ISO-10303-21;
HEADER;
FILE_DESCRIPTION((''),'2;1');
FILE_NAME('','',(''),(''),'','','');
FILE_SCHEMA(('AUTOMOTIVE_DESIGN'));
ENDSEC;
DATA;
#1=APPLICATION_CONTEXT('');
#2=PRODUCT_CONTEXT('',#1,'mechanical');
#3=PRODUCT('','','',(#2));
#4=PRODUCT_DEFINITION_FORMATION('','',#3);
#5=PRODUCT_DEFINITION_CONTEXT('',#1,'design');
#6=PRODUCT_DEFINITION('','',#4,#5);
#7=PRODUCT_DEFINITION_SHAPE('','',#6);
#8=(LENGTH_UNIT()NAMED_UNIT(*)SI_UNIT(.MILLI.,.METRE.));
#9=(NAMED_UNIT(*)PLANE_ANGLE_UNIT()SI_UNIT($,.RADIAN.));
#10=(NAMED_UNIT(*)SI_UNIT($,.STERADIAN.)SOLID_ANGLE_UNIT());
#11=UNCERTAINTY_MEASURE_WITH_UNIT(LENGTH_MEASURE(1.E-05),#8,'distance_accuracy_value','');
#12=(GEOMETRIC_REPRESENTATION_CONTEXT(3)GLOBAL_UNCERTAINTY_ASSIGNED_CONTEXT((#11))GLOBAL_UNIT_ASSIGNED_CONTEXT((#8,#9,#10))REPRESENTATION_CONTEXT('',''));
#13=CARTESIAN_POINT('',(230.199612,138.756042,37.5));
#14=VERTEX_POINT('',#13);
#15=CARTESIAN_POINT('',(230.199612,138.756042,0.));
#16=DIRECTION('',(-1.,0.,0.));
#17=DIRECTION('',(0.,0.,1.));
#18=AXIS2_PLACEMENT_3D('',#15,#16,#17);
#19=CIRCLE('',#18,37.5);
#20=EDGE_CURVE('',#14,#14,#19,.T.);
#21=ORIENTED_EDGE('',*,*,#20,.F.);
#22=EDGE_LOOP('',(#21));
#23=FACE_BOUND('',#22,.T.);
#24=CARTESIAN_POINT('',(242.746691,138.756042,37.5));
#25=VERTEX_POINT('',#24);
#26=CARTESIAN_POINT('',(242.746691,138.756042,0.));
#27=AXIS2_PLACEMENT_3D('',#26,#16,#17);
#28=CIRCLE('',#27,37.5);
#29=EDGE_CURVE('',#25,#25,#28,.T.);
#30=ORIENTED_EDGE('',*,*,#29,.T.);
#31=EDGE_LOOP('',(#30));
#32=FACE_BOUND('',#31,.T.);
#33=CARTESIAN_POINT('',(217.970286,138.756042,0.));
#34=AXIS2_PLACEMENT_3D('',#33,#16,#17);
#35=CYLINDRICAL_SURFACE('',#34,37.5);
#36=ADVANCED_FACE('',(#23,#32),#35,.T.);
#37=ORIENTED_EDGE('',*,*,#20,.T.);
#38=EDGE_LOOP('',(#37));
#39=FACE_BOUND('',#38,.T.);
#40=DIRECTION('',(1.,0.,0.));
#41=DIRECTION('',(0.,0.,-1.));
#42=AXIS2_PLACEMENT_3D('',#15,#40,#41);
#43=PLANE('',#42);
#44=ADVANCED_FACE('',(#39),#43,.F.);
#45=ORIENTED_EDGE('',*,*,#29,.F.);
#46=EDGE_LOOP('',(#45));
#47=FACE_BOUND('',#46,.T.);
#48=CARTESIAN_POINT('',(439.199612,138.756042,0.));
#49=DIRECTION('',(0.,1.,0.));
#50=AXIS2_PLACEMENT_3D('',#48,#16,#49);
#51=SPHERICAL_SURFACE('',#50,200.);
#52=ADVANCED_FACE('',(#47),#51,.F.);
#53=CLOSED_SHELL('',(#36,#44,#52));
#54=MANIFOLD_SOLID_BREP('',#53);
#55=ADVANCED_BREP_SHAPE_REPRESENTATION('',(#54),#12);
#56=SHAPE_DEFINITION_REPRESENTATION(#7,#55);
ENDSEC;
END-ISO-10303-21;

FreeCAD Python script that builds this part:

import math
import FreeCAD as App
import Part
import Sketcher

V = App.Vector
Q = App.Units.Quantity

doc = App.newDocument("Part")
body = doc.addObject("PartDesign::Body", "Body")

sketch1 = doc.addObject("Sketcher::SketchObject", "Sketch")
body.addObject(sketch1)
sketch1.AttachmentSupport = (doc.XY_Plane, [""])
sketch1.MapMode = "FlatFace"
sketch1.addGeometry([
    Part.LineSegment(V(230, 176, 0), V(230, 139, 0)),
    Part.LineSegment(V(230, 139, 0), V(239, 139, 0)),
    Part.ArcOfCircle(Part.Circle(V(439, 139, 0), V(0, 0, 1), 200), math.radians(169.19), math.radians(180)),
    Part.LineSegment(V(243, 176, 0), V(230, 176, 0)),
], False)
sketch1.addGeometry(Part.LineSegment(V(230, 139, 0), V(439, 139, 0)), True)
sketch1.addConstraint([
    Sketcher.Constraint("Coincident", 0, 2, 1, 1),
    Sketcher.Constraint("Coincident", 1, 2, 2, 2),
    Sketcher.Constraint("Coincident", 2, 1, 3, 1),
    Sketcher.Constraint("Coincident", 3, 2, 0, 1),
    Sketcher.Constraint("Vertical", 0),
    Sketcher.Constraint("Horizontal", 1),
    Sketcher.Constraint("Horizontal", 3),
    Sketcher.Constraint("Horizontal", 4),
    Sketcher.Constraint("Coincident", 4, 1, 0, 2),
    Sketcher.Constraint("Coincident", 4, 2, 2, 3),
    Sketcher.Constraint("Radius", 2, Q("200 mm")),
    Sketcher.Constraint("DistanceX", 1, 1, 1, 2, Q("9 mm")),
    Sketcher.Constraint("DistanceY", 0, 2, 0, 1, Q("37.5 mm")),
    Sketcher.Constraint("DistanceX", -1, 1, 2, 3, Q("439.199612 mm")),
    Sketcher.Constraint("DistanceY", -1, 1, 2, 3, Q("138.756042 mm")),
])
revolution = doc.addObject("PartDesign::Revolution", "Revolution")
body.addObject(revolution)
revolution.Profile = sketch1
revolution.ReferenceAxis = (sketch1, ["Axis0"])
revolution.Angle = 360

doc.recompute()
